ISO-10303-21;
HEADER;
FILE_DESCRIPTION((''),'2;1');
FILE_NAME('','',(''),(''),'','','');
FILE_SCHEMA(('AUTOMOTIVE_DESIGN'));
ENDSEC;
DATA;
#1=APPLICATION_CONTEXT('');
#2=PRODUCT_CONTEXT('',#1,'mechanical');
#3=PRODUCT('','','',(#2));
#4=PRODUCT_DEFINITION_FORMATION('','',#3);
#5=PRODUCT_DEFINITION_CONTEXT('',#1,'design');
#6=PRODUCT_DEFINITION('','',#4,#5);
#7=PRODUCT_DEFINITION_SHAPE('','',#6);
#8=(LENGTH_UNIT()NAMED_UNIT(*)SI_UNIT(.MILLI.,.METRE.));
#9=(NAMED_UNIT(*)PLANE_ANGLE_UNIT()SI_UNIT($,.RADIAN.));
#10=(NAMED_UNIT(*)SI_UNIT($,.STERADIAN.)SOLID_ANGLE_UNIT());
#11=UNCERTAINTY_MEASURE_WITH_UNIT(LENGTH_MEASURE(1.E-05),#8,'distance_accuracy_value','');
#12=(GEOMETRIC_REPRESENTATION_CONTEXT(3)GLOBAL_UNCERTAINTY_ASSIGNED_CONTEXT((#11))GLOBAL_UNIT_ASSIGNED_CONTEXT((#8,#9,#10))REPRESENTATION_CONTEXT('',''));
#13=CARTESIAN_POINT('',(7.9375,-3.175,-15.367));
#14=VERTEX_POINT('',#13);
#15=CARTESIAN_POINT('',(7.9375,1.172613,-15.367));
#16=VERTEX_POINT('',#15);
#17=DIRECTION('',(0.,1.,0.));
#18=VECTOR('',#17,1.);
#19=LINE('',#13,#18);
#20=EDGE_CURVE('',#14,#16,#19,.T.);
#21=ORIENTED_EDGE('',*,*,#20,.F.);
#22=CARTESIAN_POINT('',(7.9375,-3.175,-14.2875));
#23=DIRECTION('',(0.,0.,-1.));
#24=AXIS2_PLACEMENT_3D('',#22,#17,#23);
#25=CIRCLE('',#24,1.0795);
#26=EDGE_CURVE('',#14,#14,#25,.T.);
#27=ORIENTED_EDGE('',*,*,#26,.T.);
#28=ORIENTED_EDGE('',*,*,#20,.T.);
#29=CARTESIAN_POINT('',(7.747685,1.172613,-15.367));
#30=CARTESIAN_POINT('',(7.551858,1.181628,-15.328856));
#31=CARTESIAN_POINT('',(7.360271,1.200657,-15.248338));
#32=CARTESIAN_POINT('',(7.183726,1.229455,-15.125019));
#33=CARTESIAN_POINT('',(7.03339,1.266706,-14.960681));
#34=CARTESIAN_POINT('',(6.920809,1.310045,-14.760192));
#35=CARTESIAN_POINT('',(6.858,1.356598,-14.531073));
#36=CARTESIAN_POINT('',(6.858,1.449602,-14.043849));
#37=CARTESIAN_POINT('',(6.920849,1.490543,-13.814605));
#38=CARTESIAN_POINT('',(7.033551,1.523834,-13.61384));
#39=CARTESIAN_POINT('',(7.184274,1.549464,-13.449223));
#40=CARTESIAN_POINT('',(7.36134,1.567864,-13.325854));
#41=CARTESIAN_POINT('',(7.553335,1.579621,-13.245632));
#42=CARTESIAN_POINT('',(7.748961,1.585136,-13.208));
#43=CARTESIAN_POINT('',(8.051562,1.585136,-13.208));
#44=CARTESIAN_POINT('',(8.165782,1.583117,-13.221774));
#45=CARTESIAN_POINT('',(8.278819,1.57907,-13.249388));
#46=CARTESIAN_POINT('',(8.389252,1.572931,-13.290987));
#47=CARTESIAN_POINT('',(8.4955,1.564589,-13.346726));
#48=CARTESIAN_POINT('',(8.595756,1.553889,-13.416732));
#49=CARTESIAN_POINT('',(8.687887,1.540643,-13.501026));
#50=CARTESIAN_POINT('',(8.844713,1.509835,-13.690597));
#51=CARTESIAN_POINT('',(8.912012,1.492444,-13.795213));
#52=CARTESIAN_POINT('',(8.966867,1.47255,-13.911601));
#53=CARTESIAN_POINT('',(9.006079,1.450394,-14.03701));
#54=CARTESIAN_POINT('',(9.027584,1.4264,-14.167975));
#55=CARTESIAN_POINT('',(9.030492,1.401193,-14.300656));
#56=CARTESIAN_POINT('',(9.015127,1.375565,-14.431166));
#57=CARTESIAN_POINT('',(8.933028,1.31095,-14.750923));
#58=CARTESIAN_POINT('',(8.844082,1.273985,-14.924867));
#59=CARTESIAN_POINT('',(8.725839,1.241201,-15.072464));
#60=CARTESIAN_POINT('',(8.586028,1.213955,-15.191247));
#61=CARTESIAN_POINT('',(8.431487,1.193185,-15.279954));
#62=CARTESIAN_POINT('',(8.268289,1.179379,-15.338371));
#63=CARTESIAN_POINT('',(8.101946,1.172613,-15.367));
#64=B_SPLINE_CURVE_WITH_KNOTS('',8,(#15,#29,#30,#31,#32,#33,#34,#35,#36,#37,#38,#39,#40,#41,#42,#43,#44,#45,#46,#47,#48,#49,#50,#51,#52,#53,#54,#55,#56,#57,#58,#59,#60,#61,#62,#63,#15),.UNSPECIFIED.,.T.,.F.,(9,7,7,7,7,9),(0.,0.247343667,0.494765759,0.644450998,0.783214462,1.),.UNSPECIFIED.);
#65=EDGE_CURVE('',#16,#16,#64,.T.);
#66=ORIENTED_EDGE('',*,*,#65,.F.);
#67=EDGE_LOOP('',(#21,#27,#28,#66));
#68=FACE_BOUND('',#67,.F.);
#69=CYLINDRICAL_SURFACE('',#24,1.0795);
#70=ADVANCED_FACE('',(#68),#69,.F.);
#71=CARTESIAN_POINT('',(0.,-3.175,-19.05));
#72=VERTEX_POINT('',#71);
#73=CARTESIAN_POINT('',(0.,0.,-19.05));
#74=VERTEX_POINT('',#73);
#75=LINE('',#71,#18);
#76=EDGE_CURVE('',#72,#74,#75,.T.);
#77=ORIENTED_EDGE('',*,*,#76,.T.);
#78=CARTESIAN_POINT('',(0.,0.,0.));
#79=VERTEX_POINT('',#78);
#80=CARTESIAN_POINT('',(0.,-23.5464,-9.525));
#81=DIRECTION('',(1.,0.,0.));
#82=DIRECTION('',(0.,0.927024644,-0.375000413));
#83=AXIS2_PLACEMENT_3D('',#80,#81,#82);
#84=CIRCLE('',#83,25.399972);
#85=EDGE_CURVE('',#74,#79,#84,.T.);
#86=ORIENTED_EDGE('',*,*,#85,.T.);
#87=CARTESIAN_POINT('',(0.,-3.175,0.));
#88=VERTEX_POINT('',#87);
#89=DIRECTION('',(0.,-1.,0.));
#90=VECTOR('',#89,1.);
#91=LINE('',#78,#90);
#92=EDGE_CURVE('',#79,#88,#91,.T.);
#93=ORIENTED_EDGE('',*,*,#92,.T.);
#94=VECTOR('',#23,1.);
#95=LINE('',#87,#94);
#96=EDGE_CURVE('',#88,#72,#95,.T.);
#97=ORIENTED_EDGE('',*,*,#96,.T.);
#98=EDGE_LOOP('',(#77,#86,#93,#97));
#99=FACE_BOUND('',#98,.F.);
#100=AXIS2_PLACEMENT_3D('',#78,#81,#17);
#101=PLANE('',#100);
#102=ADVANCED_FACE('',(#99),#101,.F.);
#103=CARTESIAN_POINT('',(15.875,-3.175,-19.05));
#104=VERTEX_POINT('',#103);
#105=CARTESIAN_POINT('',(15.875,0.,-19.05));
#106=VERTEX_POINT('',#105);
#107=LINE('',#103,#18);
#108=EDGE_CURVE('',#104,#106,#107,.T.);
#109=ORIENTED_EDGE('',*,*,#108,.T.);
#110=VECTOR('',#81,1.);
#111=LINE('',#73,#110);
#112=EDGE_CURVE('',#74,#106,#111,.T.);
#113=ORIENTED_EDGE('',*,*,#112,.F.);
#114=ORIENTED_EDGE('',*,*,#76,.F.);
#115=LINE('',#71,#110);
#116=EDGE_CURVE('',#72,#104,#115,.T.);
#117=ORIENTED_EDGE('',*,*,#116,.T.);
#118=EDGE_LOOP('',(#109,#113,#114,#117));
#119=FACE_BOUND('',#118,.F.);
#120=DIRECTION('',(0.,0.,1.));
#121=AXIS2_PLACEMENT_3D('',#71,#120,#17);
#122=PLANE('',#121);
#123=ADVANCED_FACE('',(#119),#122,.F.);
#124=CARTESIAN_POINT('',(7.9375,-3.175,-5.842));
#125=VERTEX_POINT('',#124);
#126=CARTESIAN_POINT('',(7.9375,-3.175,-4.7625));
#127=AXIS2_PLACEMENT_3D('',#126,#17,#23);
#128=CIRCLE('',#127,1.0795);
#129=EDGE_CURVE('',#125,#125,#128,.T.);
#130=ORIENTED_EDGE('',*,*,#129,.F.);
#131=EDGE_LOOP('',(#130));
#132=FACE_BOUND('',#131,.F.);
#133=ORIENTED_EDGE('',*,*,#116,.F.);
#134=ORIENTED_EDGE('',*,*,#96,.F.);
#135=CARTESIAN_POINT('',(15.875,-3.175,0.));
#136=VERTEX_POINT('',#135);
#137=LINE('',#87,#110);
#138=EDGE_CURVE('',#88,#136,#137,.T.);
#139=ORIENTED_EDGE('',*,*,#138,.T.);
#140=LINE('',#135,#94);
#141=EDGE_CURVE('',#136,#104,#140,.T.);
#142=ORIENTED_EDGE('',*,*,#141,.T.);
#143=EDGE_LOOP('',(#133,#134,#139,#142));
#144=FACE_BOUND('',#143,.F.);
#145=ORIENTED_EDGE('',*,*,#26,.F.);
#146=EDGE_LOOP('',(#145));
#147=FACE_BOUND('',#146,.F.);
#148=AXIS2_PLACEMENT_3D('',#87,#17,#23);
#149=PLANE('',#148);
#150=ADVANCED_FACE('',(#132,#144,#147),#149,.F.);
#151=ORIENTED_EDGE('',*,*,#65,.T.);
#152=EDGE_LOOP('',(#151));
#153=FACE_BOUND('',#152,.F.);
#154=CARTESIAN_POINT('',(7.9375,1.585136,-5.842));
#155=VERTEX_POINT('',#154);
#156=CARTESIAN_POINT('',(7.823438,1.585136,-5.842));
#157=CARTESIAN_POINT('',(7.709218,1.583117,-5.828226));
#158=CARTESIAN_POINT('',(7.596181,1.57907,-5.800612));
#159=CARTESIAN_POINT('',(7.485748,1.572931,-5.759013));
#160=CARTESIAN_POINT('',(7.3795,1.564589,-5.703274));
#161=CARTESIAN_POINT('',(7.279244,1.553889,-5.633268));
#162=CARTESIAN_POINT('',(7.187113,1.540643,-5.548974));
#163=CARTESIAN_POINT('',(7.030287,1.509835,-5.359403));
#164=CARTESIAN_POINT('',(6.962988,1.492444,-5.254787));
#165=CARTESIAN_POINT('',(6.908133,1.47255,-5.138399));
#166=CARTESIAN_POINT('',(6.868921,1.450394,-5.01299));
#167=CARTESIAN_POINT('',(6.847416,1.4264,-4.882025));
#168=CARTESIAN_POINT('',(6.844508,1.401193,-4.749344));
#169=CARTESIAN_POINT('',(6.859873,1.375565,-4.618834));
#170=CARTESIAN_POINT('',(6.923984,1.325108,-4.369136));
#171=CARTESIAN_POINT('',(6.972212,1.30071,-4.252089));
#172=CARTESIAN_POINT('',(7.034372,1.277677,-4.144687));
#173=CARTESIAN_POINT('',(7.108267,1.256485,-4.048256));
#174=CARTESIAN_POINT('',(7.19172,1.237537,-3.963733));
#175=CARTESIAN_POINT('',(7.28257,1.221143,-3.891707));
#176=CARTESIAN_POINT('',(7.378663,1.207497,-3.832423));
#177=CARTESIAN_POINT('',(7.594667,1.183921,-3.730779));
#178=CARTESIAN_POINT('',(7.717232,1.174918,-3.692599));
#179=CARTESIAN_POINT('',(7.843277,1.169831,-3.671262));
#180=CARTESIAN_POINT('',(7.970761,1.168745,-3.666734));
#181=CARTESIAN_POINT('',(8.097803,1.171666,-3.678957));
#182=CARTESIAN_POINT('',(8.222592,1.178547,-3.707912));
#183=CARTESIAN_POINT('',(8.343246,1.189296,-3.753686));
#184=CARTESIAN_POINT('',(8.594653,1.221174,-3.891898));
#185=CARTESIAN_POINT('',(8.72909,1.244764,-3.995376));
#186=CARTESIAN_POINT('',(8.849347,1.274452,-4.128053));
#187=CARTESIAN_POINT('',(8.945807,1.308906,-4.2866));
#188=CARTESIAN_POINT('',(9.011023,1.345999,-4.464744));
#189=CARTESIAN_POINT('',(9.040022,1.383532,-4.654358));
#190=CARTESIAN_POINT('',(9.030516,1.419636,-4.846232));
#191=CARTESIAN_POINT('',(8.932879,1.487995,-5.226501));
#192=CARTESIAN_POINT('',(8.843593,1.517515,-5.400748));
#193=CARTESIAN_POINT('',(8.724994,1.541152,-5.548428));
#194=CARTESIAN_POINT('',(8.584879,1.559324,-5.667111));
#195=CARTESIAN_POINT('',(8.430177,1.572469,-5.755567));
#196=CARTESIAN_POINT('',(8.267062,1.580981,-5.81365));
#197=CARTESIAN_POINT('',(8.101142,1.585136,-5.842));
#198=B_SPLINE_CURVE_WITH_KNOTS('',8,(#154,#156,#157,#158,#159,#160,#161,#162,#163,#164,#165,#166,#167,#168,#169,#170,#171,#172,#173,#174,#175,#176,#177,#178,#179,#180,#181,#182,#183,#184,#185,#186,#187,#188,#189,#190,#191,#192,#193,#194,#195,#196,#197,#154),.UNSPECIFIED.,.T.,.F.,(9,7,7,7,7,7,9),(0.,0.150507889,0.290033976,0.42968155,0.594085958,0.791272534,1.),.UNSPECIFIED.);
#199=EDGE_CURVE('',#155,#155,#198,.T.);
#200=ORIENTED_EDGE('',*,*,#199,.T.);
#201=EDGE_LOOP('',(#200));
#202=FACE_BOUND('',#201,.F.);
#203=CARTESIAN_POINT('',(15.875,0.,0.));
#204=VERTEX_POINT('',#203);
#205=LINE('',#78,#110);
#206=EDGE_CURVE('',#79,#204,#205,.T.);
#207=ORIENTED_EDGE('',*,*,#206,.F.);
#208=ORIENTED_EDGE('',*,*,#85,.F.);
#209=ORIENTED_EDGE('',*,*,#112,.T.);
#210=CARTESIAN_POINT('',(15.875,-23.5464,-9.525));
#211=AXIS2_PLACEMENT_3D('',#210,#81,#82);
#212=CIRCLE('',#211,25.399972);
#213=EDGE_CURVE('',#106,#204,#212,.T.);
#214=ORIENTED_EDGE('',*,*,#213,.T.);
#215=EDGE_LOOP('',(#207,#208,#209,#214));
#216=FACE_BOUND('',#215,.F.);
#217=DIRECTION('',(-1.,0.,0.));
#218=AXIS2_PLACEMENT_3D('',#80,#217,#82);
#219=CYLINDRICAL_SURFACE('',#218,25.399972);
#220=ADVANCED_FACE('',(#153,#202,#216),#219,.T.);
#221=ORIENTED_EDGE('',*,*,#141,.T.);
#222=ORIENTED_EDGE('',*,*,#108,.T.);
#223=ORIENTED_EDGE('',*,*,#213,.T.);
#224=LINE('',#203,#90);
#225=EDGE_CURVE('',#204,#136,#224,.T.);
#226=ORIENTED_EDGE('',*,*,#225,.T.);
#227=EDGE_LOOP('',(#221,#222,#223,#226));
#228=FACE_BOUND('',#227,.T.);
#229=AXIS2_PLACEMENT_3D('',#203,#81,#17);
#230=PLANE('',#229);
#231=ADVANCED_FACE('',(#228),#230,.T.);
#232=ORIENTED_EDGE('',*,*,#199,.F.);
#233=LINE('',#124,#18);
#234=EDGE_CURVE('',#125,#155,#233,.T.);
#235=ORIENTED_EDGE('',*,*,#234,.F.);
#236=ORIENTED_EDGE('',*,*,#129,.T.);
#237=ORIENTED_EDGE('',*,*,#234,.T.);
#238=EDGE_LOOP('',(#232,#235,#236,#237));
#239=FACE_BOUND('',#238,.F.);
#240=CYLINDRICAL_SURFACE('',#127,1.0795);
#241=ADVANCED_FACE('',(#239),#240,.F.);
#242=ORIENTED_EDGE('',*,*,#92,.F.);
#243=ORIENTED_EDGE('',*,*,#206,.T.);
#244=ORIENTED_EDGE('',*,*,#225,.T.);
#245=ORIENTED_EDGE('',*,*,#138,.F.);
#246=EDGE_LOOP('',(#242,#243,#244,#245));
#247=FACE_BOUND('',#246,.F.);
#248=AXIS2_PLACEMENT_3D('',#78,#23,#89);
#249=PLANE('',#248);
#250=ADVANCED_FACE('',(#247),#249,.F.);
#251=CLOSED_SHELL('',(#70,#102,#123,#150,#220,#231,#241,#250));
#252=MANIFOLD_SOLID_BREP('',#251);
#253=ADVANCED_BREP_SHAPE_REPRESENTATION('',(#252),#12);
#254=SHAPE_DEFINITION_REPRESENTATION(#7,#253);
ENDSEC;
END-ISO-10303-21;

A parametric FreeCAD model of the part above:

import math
import FreeCAD as App
import Part
import Sketcher
Q = App.Units.Quantity

doc = App.newDocument("Part")
body = doc.addObject("PartDesign::Body", "Body")

# Sketch on YZ plane
sketch1 = body.newObject("Sketcher::SketchObject", "Sketch")
sketch1.AttachmentSupport = (doc.getObject("YZ_Plane"), [""])
sketch1.MapMode = "FlatFace"
sketch1.addGeometry(Part.ArcOfCircle(Part.Circle(App.Vector(-23.5, -9.5, 0), App.Vector(0, 0, 1), 25.4), math.radians(-22), math.radians(22)), False)
sketch1.addGeometry(Part.LineSegment(App.Vector(0, 0, 0), App.Vector(-3.2, 0, 0)), False)
sketch1.addGeometry(Part.LineSegment(App.Vector(-3.2, 0, 0), App.Vector(-3.2, -19.1, 0)), False)
sketch1.addGeometry(Part.LineSegment(App.Vector(-3.2, -19.1, 0), App.Vector(0, -19.1, 0)), False)
sketch1.addConstraint(Sketcher.Constraint("Coincident", 0, 2, 1, 1))
sketch1.addConstraint(Sketcher.Constraint("Coincident", 1, 2, 2, 1))
sketch1.addConstraint(Sketcher.Constraint("Coincident", 2, 2, 3, 1))
sketch1.addConstraint(Sketcher.Constraint("Coincident", 3, 2, 0, 1))
sketch1.addConstraint(Sketcher.Constraint("Horizontal", 1))
sketch1.addConstraint(Sketcher.Constraint("Vertical", 2))
sketch1.addConstraint(Sketcher.Constraint("Horizontal", 3))
sketch1.addConstraint(Sketcher.Constraint("Coincident", 0, 2, -1, 1))
sketch1.addConstraint(Sketcher.Constraint("PointOnObject", 3, 2, -2))
sketch1.addConstraint(Sketcher.Constraint("Radius", 0, Q("1 in")))
sketch1.addConstraint(Sketcher.Constraint("DistanceY", 2, 2, 2, 1, Q("0.75 in")))
sketch1.addConstraint(Sketcher.Constraint("DistanceX", 1, 2, 1, 1, Q("0.125 in")))
pad1 = body.newObject("PartDesign::Pad", "Pad")
pad1.Profile = sketch1
pad1.Length = Q("0.625 in")

# Sketch on XZ plane
sketch2 = body.newObject("Sketcher::SketchObject", "Sketch001")
sketch2.AttachmentSupport = (doc.getObject("XZ_Plane"), [""])
sketch2.MapMode = "FlatFace"
sketch2.AttachmentOffset = App.Placement(App.Vector(0, 0, 0.125 * 25.4), App.Rotation())
sketch2.addGeometry(Part.Circle(App.Vector(7.9, -4.8, 0), App.Vector(0, 0, 1), 1.1), False)
sketch2.addGeometry(Part.Circle(App.Vector(7.9, -14.3, 0), App.Vector(0, 0, 1), 1.1), False)
sketch2.addConstraint(Sketcher.Constraint("Equal", 0, 1))
sketch2.addConstraint(Sketcher.Constraint("Vertical", 0, 3, 1, 3))
sketch2.addConstraint(Sketcher.Constraint("Diameter", 0, Q("0.085 in")))
sketch2.addConstraint(Sketcher.Constraint("DistanceX", -1, 1, 0, 3, Q("0.3125 in")))
sketch2.addConstraint(Sketcher.Constraint("DistanceY", 0, 3, -1, 1, Q("0.1875 in")))
sketch2.addConstraint(Sketcher.Constraint("DistanceY", 1, 3, -1, 1, Q("0.5625 in")))
doc.recompute()
hole = body.newObject("PartDesign::Hole", "Hole")
hole.Profile = sketch2
hole.ThreadType = "None"
hole.Diameter = Q("0.085 in")
hole.DepthType = "Dimension"
hole.Depth = Q("0.25 in")
hole.DrillPoint = "Angled"
hole.DrillPointAngle = 118

doc.recompute()
